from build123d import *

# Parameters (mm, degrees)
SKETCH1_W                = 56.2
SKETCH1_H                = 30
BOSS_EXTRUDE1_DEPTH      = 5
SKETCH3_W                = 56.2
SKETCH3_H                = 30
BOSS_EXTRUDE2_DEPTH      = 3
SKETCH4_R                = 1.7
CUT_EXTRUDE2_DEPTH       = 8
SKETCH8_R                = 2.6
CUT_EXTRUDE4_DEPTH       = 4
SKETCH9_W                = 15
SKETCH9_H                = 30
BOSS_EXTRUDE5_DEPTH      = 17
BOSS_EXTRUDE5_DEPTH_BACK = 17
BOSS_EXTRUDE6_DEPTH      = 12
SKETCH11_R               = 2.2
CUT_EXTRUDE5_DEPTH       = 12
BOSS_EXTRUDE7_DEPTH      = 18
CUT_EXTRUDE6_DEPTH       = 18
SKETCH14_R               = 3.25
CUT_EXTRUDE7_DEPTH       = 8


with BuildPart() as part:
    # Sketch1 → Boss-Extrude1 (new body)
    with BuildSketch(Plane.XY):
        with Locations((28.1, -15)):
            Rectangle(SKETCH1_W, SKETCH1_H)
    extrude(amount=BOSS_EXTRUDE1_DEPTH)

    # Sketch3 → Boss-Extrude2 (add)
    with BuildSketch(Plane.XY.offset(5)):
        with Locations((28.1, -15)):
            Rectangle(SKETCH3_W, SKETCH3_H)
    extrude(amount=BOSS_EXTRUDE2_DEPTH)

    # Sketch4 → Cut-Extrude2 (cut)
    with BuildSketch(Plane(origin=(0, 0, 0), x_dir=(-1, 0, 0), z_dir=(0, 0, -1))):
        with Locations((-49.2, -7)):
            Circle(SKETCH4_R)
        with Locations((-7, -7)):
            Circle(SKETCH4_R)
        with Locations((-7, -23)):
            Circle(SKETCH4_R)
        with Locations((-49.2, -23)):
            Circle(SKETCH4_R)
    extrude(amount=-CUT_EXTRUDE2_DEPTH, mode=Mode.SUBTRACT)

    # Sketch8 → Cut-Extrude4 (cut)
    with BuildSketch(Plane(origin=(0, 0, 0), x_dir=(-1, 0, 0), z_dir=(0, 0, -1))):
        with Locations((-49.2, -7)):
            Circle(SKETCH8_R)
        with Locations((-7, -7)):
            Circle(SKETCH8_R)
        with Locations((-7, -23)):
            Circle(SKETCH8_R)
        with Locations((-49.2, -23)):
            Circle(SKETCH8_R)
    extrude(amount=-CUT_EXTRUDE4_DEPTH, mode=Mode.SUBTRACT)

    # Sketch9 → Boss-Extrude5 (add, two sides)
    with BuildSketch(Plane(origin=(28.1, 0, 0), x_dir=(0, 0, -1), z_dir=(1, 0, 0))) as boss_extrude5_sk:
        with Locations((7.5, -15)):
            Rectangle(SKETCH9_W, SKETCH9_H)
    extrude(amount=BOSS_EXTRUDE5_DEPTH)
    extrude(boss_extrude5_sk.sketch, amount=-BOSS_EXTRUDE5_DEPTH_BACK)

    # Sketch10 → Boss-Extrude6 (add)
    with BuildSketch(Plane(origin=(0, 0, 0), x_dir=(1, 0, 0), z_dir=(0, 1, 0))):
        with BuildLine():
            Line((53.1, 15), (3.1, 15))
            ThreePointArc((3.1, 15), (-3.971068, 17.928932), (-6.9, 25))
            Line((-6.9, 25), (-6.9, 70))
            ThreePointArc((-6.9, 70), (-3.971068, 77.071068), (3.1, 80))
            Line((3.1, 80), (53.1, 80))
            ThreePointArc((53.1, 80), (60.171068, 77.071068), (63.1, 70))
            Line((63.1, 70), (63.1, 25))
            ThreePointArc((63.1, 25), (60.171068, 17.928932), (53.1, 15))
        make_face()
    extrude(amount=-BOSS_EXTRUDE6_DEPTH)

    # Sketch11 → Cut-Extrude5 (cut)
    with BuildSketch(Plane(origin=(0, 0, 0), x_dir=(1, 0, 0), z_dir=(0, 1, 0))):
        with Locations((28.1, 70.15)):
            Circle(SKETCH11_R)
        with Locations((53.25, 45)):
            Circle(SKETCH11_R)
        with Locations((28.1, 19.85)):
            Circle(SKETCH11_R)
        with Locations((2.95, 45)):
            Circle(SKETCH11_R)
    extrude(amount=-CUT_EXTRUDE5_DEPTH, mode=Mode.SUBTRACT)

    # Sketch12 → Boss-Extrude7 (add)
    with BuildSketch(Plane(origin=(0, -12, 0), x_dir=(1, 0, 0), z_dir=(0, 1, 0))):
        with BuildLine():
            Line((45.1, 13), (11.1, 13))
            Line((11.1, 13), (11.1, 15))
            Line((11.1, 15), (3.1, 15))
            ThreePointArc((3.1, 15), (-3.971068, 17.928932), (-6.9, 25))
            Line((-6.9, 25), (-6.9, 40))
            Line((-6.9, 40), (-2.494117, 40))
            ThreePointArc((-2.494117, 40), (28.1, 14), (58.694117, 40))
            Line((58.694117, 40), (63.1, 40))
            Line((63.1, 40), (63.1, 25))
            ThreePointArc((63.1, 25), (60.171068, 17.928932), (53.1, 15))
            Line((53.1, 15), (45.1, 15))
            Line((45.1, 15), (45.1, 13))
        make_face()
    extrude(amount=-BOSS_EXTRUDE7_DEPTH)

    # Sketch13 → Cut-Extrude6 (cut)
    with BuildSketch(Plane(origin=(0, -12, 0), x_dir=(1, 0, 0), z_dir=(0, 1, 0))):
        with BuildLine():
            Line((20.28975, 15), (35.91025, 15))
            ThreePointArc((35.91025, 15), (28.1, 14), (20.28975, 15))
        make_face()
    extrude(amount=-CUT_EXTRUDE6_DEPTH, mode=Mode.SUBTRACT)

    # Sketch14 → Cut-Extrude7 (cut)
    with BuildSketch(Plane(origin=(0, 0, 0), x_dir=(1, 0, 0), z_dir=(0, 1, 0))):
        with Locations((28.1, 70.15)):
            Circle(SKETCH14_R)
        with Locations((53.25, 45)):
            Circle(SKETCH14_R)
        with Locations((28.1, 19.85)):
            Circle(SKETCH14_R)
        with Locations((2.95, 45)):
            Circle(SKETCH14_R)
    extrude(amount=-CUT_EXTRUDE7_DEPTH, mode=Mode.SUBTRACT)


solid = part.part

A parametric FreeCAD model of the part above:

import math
import FreeCAD as App
import Part
import Sketcher
Q = App.Units.Quantity

doc = App.newDocument("Part")
body = doc.addObject("PartDesign::Body", "Body")

# Sketch on XY plane
sketch1 = body.newObject("Sketcher::SketchObject", "Sketch")
sketch1.AttachmentSupport = (doc.getObject("XY_Plane"), [""])
sketch1.MapMode = "FlatFace"
sketch1.addGeometry([
    Part.LineSegment(App.Vector(0, 0, 0), App.Vector(0, -30, 0)),
    Part.LineSegment(App.Vector(0, -30, 0), App.Vector(56, -30, 0)),
    Part.LineSegment(App.Vector(56, -30, 0), App.Vector(56, 0, 0)),
    Part.LineSegment(App.Vector(56, 0, 0), App.Vector(0, 0, 0)),
], False)
sketch1.addConstraint([
    Sketcher.Constraint("Coincident", 0, 2, 1, 1),
    Sketcher.Constraint("Coincident", 1, 2, 2, 1),
    Sketcher.Constraint("Coincident", 2, 2, 3, 1),
    Sketcher.Constraint("Coincident", 3, 2, 0, 1),
    Sketcher.Constraint("Vertical", 0),
    Sketcher.Constraint("Horizontal", 1),
    Sketcher.Constraint("Vertical", 2),
    Sketcher.Constraint("Horizontal", 3),
    Sketcher.Constraint("Coincident", 3, 2, -1, 1),
    Sketcher.Constraint("DistanceY", 0, 2, 0, 1, Q("30 mm")),
    Sketcher.Constraint("DistanceX", 1, 1, 1, 2, Q("56.2 mm")),
])
pad1 = body.newObject("PartDesign::Pad", "Pad")
pad1.Profile = sketch1
pad1.Length = 5

# Sketch on XY plane
sketch2 = body.newObject("Sketcher::SketchObject", "Sketch001")
sketch2.AttachmentSupport = (doc.getObject("XY_Plane"), [""])
sketch2.MapMode = "FlatFace"
sketch2.AttachmentOffset = App.Placement(App.Vector(0, 0, 5), App.Rotation())
sketch2.addGeometry([
    Part.LineSegment(App.Vector(0, 0, 0), App.Vector(0, -30, 0)),
    Part.LineSegment(App.Vector(0, -30, 0), App.Vector(56, -30, 0)),
    Part.LineSegment(App.Vector(56, -30, 0), App.Vector(56, 0, 0)),
    Part.LineSegment(App.Vector(56, 0, 0), App.Vector(0, 0, 0)),
], False)
sketch2.addConstraint([
    Sketcher.Constraint("Coincident", 0, 2, 1, 1),
    Sketcher.Constraint("Coincident", 1, 2, 2, 1),
    Sketcher.Constraint("Coincident", 2, 2, 3, 1),
    Sketcher.Constraint("Coincident", 3, 2, 0, 1),
    Sketcher.Constraint("Vertical", 0),
    Sketcher.Constraint("Horizontal", 1),
    Sketcher.Constraint("Vertical", 2),
    Sketcher.Constraint("Horizontal", 3),
    Sketcher.Constraint("Coincident", 3, 2, -1, 1),
    Sketcher.Constraint("DistanceY", 0, 2, 0, 1, Q("30 mm")),
    Sketcher.Constraint("DistanceX", 1, 1, 1, 2, Q("56.2 mm")),
])
pad2 = body.newObject("PartDesign::Pad", "Pad001")
pad2.Profile = sketch2
pad2.Length = 3

# Sketch on XY plane
sketch3 = body.newObject("Sketcher::SketchObject", "Sketch002")
sketch3.AttachmentSupport = (doc.getObject("XY_Plane"), [""])
sketch3.MapMode = "FlatFace"
sketch3.addGeometry([
    Part.Circle(App.Vector(49.2, -7, 0), App.Vector(0, 0, 1), 1.7),
    Part.Circle(App.Vector(7, -7, 0), App.Vector(0, 0, 1), 1.7),
    Part.Circle(App.Vector(7, -23, 0), App.Vector(0, 0, 1), 1.7),
    Part.Circle(App.Vector(49.2, -23, 0), App.Vector(0, 0, 1), 1.7),
], False)
sketch3.addConstraint([
    Sketcher.Constraint("Equal", 0, 1),
    Sketcher.Constraint("Equal", 1, 2),
    Sketcher.Constraint("Equal", 2, 3),
    Sketcher.Constraint("Horizontal", 0, 3, 1, 3),
    Sketcher.Constraint("Horizontal", 2, 3, 3, 3),
    Sketcher.Constraint("Vertical", 1, 3, 2, 3),
    Sketcher.Constraint("Vertical", 0, 3, 3, 3),
    Sketcher.Constraint("Diameter", 0, Q("3.4 mm")),
    Sketcher.Constraint("DistanceY", 0, 3, -1, 1, Q("7 mm")),
    Sketcher.Constraint("DistanceX", -1, 1, 1, 3, Q("7 mm")),
    Sketcher.Constraint("DistanceY", 2, 3, -1, 1, Q("23 mm")),
    Sketcher.Constraint("DistanceX", -1, 1, 0, 3, Q("49.2 mm")),
])
pocket1 = body.newObject("PartDesign::Pocket", "Pocket")
pocket1.Profile = sketch3
pocket1.Length = 8
pocket1.Reversed = True

# Sketch on XY plane
sketch4 = body.newObject("Sketcher::SketchObject", "Sketch003")
sketch4.AttachmentSupport = (doc.getObject("XY_Plane"), [""])
sketch4.MapMode = "FlatFace"
sketch4.addGeometry([
    Part.Circle(App.Vector(49.2, -7, 0), App.Vector(0, 0, 1), 2.6),
    Part.Circle(App.Vector(7, -7, 0), App.Vector(0, 0, 1), 2.6),
    Part.Circle(App.Vector(7, -23, 0), App.Vector(0, 0, 1), 2.6),
    Part.Circle(App.Vector(49.2, -23, 0), App.Vector(0, 0, 1), 2.6),
], False)
sketch4.addConstraint([
    Sketcher.Constraint("Equal", 0, 1),
    Sketcher.Constraint("Equal", 1, 2),
    Sketcher.Constraint("Equal", 2, 3),
    Sketcher.Constraint("Horizontal", 0, 3, 1, 3),
    Sketcher.Constraint("Horizontal", 2, 3, 3, 3),
    Sketcher.Constraint("Vertical", 1, 3, 2, 3),
    Sketcher.Constraint("Vertical", 0, 3, 3, 3),
    Sketcher.Constraint("Diameter", 0, Q("5.2 mm")),
    Sketcher.Constraint("DistanceY", 0, 3, -1, 1, Q("7 mm")),
    Sketcher.Constraint("DistanceX", -1, 1, 1, 3, Q("7 mm")),
    Sketcher.Constraint("DistanceY", 2, 3, -1, 1, Q("23 mm")),
    Sketcher.Constraint("DistanceX", -1, 1, 0, 3, Q("49.2 mm")),
])
pocket2 = body.newObject("PartDesign::Pocket", "Pocket001")
pocket2.Profile = sketch4
pocket2.Length = 4
pocket2.Reversed = True

# Sketch on YZ plane
sketch5 = body.newObject("Sketcher::SketchObject", "Sketch004")
sketch5.AttachmentSupport = (doc.getObject("YZ_Plane"), [""])
sketch5.MapMode = "FlatFace"
sketch5.AttachmentOffset = App.Placement(App.Vector(0, 0, 28.1), App.Rotation())
sketch5.addGeometry([
    Part.LineSegment(App.Vector(0, 0, 0), App.Vector(-30, 0, 0)),
    Part.LineSegment(App.Vector(-30, 0, 0), App.Vector(-30, -15, 0)),
    Part.LineSegment(App.Vector(-30, -15, 0), App.Vector(0, -15, 0)),
    Part.LineSegment(App.Vector(0, -15, 0), App.Vector(0, 0, 0)),
], False)
sketch5.addConstraint([
    Sketcher.Constraint("Coincident", 0, 2, 1, 1),
    Sketcher.Constraint("Coincident", 1, 2, 2, 1),
    Sketcher.Constraint("Coincident", 2, 2, 3, 1),
    Sketcher.Constraint("Coincident", 3, 2, 0, 1),
    Sketcher.Constraint("Horizontal", 0),
    Sketcher.Constraint("Vertical", 1),
    Sketcher.Constraint("Horizontal", 2),
    Sketcher.Constraint("Vertical", 3),
    Sketcher.Constraint("Coincident", 3, 2, -1, 1),
    Sketcher.Constraint("DistanceX", 0, 2, 0, 1, Q("30 mm")),
    Sketcher.Constraint("DistanceY", 1, 2, 1, 1, Q("15 mm")),
])
pad3 = body.newObject("PartDesign::Pad", "Pad002")
pad3.Profile = sketch5
pad3.Type = "TwoLengths"
pad3.Length = 17
pad3.Length2 = 17

# Sketch on XZ plane
sketch6 = body.newObject("Sketcher::SketchObject", "Sketch005")
sketch6.AttachmentSupport = (doc.getObject("XZ_Plane"), [""])
sketch6.MapMode = "FlatFace"
sketch6.addGeometry([
    Part.LineSegment(App.Vector(3, -15, 0), App.Vector(53, -15, 0)),  # 0
    Part.ArcOfCircle(Part.Circle(App.Vector(53, -25, 0), App.Vector(0, 0, 1), 10), math.radians(0), math.radians(90)),  # 1
    Part.LineSegment(App.Vector(63, -25, 0), App.Vector(63, -70, 0)),  # 2
    Part.ArcOfCircle(Part.Circle(App.Vector(53, -70, 0), App.Vector(0, 0, 1), 10), math.radians(-90), math.radians(0)),  # 3
    Part.LineSegment(App.Vector(53, -80, 0), App.Vector(3, -80, 0)),  # 4
    Part.ArcOfCircle(Part.Circle(App.Vector(3, -70, 0), App.Vector(0, 0, 1), 10), math.radians(180), math.radians(270)),  # 5
    Part.LineSegment(App.Vector(-7, -70, 0), App.Vector(-7, -25, 0)),  # 6
    Part.ArcOfCircle(Part.Circle(App.Vector(3, -25, 0), App.Vector(0, 0, 1), 10), math.radians(90), math.radians(180)),  # 7
], False)
sketch6.addConstraint([
    Sketcher.Constraint("Tangent", 0, 2, 1, 2),
    Sketcher.Constraint("Tangent", 1, 1, 2, 1),
    Sketcher.Constraint("Tangent", 2, 2, 3, 2),
    Sketcher.Constraint("Tangent", 3, 1, 4, 1),
    Sketcher.Constraint("Tangent", 4, 2, 5, 2),
    Sketcher.Constraint("Tangent", 5, 1, 6, 1),
    Sketcher.Constraint("Tangent", 6, 2, 7, 2),
    Sketcher.Constraint("Tangent", 7, 1, 0, 1),
    Sketcher.Constraint("Horizontal", 0),
    Sketcher.Constraint("Vertical", 2),
    Sketcher.Constraint("Horizontal", 4),
    Sketcher.Constraint("Vertical", 6),
    Sketcher.Constraint("Equal", 1, 3),
    Sketcher.Constraint("Equal", 3, 5),
    Sketcher.Constraint("Equal", 5, 7),
    Sketcher.Constraint("Radius", 1, Q("9.999999 mm")),
    Sketcher.Constraint("DistanceX", 0, 1, 0, 2, Q("50 mm")),
    Sketcher.Constraint("DistanceY", 2, 2, 2, 1, Q("45 mm")),
    Sketcher.Constraint("DistanceY", 1, 3, -1, 1, Q("24.999999 mm")),
    Sketcher.Constraint("DistanceX", -1, 1, 1, 3, Q("53.100001 mm")),
])
pad4 = body.newObject("PartDesign::Pad", "Pad003")
pad4.Profile = sketch6
pad4.Length = 12

# Sketch on XZ plane
sketch7 = body.newObject("Sketcher::SketchObject", "Sketch006")
sketch7.AttachmentSupport = (doc.getObject("XZ_Plane"), [""])
sketch7.MapMode = "FlatFace"
sketch7.addGeometry([
    Part.Circle(App.Vector(28.1, -70.2, 0), App.Vector(0, 0, 1), 2.2),
    Part.Circle(App.Vector(53.2, -45, 0), App.Vector(0, 0, 1), 2.2),
    Part.Circle(App.Vector(28.1, -19.9, 0), App.Vector(0, 0, 1), 2.2),
    Part.Circle(App.Vector(3, -45, 0), App.Vector(0, 0, 1), 2.2),
], False)
sketch7.addConstraint([
    Sketcher.Constraint("Equal", 0, 1),
    Sketcher.Constraint("Equal", 1, 2),
    Sketcher.Constraint("Equal", 2, 3),
    Sketcher.Constraint("Horizontal", 1, 3, 3, 3),
    Sketcher.Constraint("Vertical", 0, 3, 2, 3),
    Sketcher.Constraint("Diameter", 0, Q("4.4 mm")),
    Sketcher.Constraint("DistanceY", 1, 3, -1, 1, Q("45 mm")),
    Sketcher.Constraint("DistanceX", -1, 1, 0, 3, Q("28.1 mm")),
    Sketcher.Constraint("DistanceY", 0, 3, 2, 3, Q("50.3 mm")),
    Sketcher.Constraint("DistanceX", 3, 3, 1, 3, Q("50.3 mm")),
    Sketcher.Constraint("DistanceY", 0, 3, -1, 1, Q("70.15 mm")),
    Sketcher.Constraint("DistanceX", -1, 1, 1, 3, Q("53.25 mm")),
])
pocket3 = body.newObject("PartDesign::Pocket", "Pocket002")
pocket3.Profile = sketch7
pocket3.Length = 12
pocket3.Reversed = True

# Sketch on XZ plane
sketch8 = body.newObject("Sketcher::SketchObject", "Sketch007")
sketch8.AttachmentSupport = (doc.getObject("XZ_Plane"), [""])
sketch8.MapMode = "FlatFace"
sketch8.AttachmentOffset = App.Placement(App.Vector(0, 0, 12), App.Rotation())
sketch8.addGeometry([
    Part.LineSegment(App.Vector(11.1, -13, 0), App.Vector(45.1, -13, 0)),  # 0
    Part.LineSegment(App.Vector(45.1, -13, 0), App.Vector(45.1, -15, 0)),  # 1
    Part.LineSegment(App.Vector(45.1, -15, 0), App.Vector(53.1, -15, 0)),  # 2
    Part.ArcOfCircle(Part.Circle(App.Vector(53.1, -25, 0), App.Vector(0, 0, 1), 10), math.radians(0), math.radians(90)),  # 3
    Part.LineSegment(App.Vector(63.1, -25, 0), App.Vector(63.1, -40, 0)),  # 4
    Part.LineSegment(App.Vector(63.1, -40, 0), App.Vector(58.7, -40, 0)),  # 5
    Part.ArcOfCircle(Part.Circle(App.Vector(28.1, -45, 0), App.Vector(0, 0, 1), 31), math.radians(9), math.radians(171)),  # 6
    Part.LineSegment(App.Vector(-2.5, -40, 0), App.Vector(-6.9, -40, 0)),  # 7
    Part.LineSegment(App.Vector(-6.9, -40, 0), App.Vector(-6.9, -25, 0)),  # 8
    Part.ArcOfCircle(Part.Circle(App.Vector(3.1, -25, 0), App.Vector(0, 0, 1), 10), math.radians(90), math.radians(180)),  # 9
    Part.LineSegment(App.Vector(3.1, -15, 0), App.Vector(11.1, -15, 0)),  # 10
    Part.LineSegment(App.Vector(11.1, -15, 0), App.Vector(11.1, -13, 0)),  # 11
], False)
sketch8.addConstraint([
    Sketcher.Constraint("Coincident", 0, 2, 1, 1),
    Sketcher.Constraint("Coincident", 1, 2, 2, 1),
    Sketcher.Constraint("Tangent", 2, 2, 3, 2),
    Sketcher.Constraint("Tangent", 3, 1, 4, 1),
    Sketcher.Constraint("Coincident", 4, 2, 5, 1),
    Sketcher.Constraint("Coincident", 5, 2, 6, 1),
    Sketcher.Constraint("Coincident", 6, 2, 7, 1),
    Sketcher.Constraint("Coincident", 7, 2, 8, 1),
    Sketcher.Constraint("Tangent", 8, 2, 9, 2),
    Sketcher.Constraint("Tangent", 9, 1, 10, 1),
    Sketcher.Constraint("Coincident", 10, 2, 11, 1),
    Sketcher.Constraint("Coincident", 11, 2, 0, 1),
    Sketcher.Constraint("Horizontal", 0),
    Sketcher.Constraint("Vertical", 1),
    Sketcher.Constraint("Horizontal", 2),
    Sketcher.Constraint("Vertical", 4),
    Sketcher.Constraint("Horizontal", 5),
    Sketcher.Constraint("Horizontal", 7),
    Sketcher.Constraint("Vertical", 8),
    Sketcher.Constraint("Horizontal", 10),
    Sketcher.Constraint("Vertical", 11),
    Sketcher.Constraint("Equal", 3, 9),
    Sketcher.Constraint("Horizontal", 3, 3, 9, 3),
    Sketcher.Constraint("Horizontal", 5, 2, 6, 2),
    Sketcher.Constraint("Equal", 5, 7),
    Sketcher.Constraint("Equal", 2, 10),
    Sketcher.Constraint("Radius", 3, Q("9.999999 mm")),
    Sketcher.Constraint("Radius", 6, Q("31 mm")),
    Sketcher.Constraint("DistanceX", 0, 1, 0, 2, Q("34 mm")),
    Sketcher.Constraint("DistanceX", 2, 1, 2, 2, Q("8 mm")),
    Sketcher.Constraint("DistanceY", 1, 2, 1, 1, Q("2 mm")),
    Sketcher.Constraint("DistanceY", 4, 2, 4, 1, Q("15 mm")),
    Sketcher.Constraint("DistanceY", 3, 3, -1, 1, Q("24.999999 mm")),
    Sketcher.Constraint("DistanceY", 6, 3, -1, 1, Q("45 mm")),
    Sketcher.Constraint("DistanceX", -1, 1, 3, 3, Q("53.100001 mm")),
])
pad5 = body.newObject("PartDesign::Pad", "Pad004")
pad5.Profile = sketch8
pad5.Length = 18

# Sketch on XZ plane
sketch9 = body.newObject("Sketcher::SketchObject", "Sketch008")
sketch9.AttachmentSupport = (doc.getObject("XZ_Plane"), [""])
sketch9.MapMode = "FlatFace"
sketch9.AttachmentOffset = App.Placement(App.Vector(0, 0, 12), App.Rotation())
sketch9.addGeometry([
    Part.LineSegment(App.Vector(36, -15, 0), App.Vector(20, -15, 0)),
    Part.ArcOfCircle(Part.Circle(App.Vector(28, -45, 0), App.Vector(0, 0, 1), 31), math.radians(75), math.radians(105)),
], False)
sketch9.addConstraint([
    Sketcher.Constraint("Coincident", 0, 1, 1, 1),
    Sketcher.Constraint("Coincident", 1, 2, 0, 2),
    Sketcher.Constraint("Horizontal", 0),
    Sketcher.Constraint("DistanceY", 0, 1, -1, 1, Q("15 mm")),
    Sketcher.Constraint("DistanceX", -1, 1, 1, 3, Q("28.1 mm")),
    Sketcher.Constraint("DistanceX", 0, 2, 0, 1, Q("15.6205 mm")),
    Sketcher.Constraint("Radius", 1, Q("31.000003 mm")),
])
pocket4 = body.newObject("PartDesign::Pocket", "Pocket003")
pocket4.Profile = sketch9
pocket4.Length = 18
pocket4.Reversed = True

# Sketch on XZ plane
sketch10 = body.newObject("Sketcher::SketchObject", "Sketch009")
sketch10.AttachmentSupport = (doc.getObject("XZ_Plane"), [""])
sketch10.MapMode = "FlatFace"
sketch10.addGeometry([
    Part.Circle(App.Vector(28.1, -70.2, 0), App.Vector(0, 0, 1), 3.2),
    Part.Circle(App.Vector(53.2, -45, 0), App.Vector(0, 0, 1), 3.2),
    Part.Circle(App.Vector(28.1, -19.9, 0), App.Vector(0, 0, 1), 3.2),
    Part.Circle(App.Vector(3, -45, 0), App.Vector(0, 0, 1), 3.2),
], False)
sketch10.addConstraint([
    Sketcher.Constraint("Equal", 0, 1),
    Sketcher.Constraint("Equal", 1, 2),
    Sketcher.Constraint("Equal", 2, 3),
    Sketcher.Constraint("Horizontal", 1, 3, 3, 3),
    Sketcher.Constraint("Vertical", 0, 3, 2, 3),
    Sketcher.Constraint("Diameter", 0, Q("6.5 mm")),
    Sketcher.Constraint("DistanceY", 1, 3, -1, 1, Q("45 mm")),
    Sketcher.Constraint("DistanceX", -1, 1, 0, 3, Q("28.1 mm")),
    Sketcher.Constraint("DistanceY", 0, 3, 2, 3, Q("50.3 mm")),
    Sketcher.Constraint("DistanceX", 3, 3, 1, 3, Q("50.3 mm")),
    Sketcher.Constraint("DistanceY", 0, 3, -1, 1, Q("70.15 mm")),
    Sketcher.Constraint("DistanceX", -1, 1, 1, 3, Q("53.25 mm")),
])
pocket5 = body.newObject("PartDesign::Pocket", "Pocket004")
pocket5.Profile = sketch10
pocket5.Length = 8
pocket5.Reversed = True

doc.recompute()
